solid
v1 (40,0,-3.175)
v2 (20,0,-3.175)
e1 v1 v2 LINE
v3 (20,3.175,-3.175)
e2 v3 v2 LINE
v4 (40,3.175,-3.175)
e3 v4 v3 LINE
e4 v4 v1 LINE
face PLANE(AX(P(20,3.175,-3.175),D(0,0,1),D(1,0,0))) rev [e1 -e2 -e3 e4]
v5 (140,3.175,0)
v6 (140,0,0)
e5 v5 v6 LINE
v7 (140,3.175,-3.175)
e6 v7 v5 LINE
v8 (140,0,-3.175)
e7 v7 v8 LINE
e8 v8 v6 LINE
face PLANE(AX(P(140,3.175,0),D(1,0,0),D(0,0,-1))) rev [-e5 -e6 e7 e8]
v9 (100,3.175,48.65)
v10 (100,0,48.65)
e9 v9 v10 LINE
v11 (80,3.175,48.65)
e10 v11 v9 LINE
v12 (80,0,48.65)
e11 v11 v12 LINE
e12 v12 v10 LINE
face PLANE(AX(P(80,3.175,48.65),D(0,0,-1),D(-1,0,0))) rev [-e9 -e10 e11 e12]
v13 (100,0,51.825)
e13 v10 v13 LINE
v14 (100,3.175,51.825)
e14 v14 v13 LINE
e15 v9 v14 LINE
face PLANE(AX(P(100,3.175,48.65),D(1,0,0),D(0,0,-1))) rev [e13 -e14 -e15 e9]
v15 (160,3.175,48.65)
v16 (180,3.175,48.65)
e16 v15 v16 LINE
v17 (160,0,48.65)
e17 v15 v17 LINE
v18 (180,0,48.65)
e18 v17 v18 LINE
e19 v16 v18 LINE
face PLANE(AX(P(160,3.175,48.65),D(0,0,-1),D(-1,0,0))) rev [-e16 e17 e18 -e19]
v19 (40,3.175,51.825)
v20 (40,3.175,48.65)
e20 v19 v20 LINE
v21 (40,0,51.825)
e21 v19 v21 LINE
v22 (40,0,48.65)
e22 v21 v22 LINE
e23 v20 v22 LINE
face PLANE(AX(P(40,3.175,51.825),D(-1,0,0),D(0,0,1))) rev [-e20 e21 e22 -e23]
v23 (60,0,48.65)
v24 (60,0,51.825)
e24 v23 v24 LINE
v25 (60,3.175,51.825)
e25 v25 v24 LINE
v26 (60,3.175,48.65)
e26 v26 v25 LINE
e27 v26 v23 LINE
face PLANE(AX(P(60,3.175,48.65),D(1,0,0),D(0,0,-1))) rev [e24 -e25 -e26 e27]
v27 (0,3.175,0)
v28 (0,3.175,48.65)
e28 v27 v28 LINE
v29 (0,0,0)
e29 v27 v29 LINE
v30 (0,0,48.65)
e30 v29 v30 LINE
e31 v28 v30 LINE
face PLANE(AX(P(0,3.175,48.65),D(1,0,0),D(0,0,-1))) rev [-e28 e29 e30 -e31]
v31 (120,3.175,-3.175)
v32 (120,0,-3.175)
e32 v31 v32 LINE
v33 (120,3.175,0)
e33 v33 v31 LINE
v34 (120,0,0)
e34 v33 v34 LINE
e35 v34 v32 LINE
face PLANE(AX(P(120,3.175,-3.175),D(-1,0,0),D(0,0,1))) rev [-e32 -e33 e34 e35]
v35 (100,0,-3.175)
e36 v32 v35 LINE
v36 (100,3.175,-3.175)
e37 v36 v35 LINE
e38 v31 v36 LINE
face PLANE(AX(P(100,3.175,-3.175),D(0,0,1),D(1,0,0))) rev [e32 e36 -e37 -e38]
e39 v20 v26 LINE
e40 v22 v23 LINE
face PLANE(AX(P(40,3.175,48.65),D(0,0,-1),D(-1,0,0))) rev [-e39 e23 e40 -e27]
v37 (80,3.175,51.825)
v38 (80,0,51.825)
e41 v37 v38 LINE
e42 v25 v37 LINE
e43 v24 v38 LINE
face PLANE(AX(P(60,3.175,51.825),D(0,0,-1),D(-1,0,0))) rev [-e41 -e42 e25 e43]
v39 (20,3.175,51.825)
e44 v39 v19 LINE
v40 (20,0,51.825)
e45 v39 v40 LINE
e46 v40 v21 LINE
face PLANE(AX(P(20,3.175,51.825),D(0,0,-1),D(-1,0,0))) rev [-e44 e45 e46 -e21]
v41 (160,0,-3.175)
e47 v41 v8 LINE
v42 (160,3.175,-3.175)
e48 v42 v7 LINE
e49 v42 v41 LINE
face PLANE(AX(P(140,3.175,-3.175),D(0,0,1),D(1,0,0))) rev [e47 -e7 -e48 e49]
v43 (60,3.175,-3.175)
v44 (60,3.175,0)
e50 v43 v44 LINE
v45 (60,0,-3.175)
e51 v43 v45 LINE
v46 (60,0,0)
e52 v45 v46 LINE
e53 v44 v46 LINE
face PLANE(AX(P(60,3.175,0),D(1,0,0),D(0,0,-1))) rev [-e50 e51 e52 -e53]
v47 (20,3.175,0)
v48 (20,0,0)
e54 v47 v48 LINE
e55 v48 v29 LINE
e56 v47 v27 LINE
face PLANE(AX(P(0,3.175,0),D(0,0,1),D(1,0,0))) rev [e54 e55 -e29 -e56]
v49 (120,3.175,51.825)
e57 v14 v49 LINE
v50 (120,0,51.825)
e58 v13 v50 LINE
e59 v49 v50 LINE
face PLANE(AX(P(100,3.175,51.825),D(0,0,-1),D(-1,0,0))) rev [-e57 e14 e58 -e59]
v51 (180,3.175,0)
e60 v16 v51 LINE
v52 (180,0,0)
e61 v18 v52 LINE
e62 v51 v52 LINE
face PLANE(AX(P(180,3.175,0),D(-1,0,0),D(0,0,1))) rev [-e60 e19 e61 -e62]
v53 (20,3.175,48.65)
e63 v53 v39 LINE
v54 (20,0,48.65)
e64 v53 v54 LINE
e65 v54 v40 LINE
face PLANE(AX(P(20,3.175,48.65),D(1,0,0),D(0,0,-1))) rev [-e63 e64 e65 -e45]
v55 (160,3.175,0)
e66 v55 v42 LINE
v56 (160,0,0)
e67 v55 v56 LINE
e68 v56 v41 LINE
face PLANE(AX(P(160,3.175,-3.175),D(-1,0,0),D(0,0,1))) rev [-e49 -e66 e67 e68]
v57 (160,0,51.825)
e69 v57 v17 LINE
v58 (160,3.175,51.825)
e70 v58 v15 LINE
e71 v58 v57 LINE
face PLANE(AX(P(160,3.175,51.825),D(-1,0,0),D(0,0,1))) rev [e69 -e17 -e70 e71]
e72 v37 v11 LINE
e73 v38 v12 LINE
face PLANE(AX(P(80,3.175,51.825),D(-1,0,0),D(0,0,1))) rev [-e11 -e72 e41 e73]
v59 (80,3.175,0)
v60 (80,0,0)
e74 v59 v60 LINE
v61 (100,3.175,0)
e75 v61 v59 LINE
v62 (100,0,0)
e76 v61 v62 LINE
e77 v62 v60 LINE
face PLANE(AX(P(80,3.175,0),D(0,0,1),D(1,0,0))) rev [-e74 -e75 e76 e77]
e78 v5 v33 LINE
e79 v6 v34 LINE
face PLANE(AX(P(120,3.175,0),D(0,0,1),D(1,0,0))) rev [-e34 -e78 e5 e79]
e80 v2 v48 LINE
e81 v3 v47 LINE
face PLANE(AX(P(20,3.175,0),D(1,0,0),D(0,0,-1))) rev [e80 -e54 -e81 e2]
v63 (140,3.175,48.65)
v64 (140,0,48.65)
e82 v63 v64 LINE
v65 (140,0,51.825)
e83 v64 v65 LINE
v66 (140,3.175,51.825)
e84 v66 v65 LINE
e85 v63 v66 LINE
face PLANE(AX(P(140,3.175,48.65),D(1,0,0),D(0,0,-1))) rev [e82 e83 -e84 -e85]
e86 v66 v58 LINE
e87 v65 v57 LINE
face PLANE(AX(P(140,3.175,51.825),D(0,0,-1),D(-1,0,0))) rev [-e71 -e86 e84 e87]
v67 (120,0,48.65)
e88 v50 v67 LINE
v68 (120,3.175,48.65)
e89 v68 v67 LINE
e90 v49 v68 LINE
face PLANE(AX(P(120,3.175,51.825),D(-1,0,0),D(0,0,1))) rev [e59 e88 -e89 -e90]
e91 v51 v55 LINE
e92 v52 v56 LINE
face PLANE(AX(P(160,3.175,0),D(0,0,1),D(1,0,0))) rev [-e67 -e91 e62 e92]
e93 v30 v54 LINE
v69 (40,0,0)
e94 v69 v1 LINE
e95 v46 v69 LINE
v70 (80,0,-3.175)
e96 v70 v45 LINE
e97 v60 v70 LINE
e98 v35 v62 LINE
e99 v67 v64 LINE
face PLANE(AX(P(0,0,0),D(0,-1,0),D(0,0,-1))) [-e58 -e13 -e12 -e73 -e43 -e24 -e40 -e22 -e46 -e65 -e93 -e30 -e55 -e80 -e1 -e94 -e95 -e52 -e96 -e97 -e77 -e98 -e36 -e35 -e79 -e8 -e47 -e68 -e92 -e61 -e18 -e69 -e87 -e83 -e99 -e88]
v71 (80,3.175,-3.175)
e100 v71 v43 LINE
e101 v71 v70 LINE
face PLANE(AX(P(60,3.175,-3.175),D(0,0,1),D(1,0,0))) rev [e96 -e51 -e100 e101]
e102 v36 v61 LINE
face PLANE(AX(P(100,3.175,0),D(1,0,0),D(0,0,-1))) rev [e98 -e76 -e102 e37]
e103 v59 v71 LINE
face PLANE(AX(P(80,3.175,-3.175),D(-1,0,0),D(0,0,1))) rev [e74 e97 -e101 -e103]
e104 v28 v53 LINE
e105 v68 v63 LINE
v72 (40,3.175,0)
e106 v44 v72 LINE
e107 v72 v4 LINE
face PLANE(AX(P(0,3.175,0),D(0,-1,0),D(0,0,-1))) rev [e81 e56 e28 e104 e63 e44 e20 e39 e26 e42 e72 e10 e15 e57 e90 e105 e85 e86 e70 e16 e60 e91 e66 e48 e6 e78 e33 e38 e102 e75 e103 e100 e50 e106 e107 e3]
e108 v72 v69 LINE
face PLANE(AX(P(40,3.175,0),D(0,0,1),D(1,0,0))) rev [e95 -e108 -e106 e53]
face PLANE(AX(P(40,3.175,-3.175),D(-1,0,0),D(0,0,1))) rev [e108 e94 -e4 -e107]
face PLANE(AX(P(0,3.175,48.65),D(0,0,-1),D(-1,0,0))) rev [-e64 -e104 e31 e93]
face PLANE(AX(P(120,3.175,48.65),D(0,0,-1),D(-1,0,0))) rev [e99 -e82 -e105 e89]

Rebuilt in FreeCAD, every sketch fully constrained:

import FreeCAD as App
import Part
import Sketcher
from FreeCAD import Vector
Q = App.Units.Quantity

doc = App.newDocument("Part")
body = doc.addObject("PartDesign::Body", "Body")

sketch1 = body.newObject("Sketcher::SketchObject", "Sketch")
sketch1.AttachmentSupport = (doc.getObject("XZ_Plane"), [""])
sketch1.MapMode = "FlatFace"
sketch1.addGeometry([
    Part.LineSegment(Vector(20, 0, 0), Vector(0, 0, 0)),
    Part.LineSegment(Vector(0, 0, 0), Vector(0, 48.6, 0)),
    Part.LineSegment(Vector(0, 48.6, 0), Vector(20, 48.6, 0)),
    Part.LineSegment(Vector(20, 48.6, 0), Vector(20, 51.8, 0)),
    Part.LineSegment(Vector(20, 51.8, 0), Vector(40, 51.8, 0)),
    Part.LineSegment(Vector(40, 51.8, 0), Vector(40, 48.6, 0)),
    Part.LineSegment(Vector(40, 48.6, 0), Vector(60, 48.6, 0)),
    Part.LineSegment(Vector(60, 48.6, 0), Vector(60, 51.8, 0)),
    Part.LineSegment(Vector(60, 51.8, 0), Vector(80, 51.8, 0)),
    Part.LineSegment(Vector(80, 51.8, 0), Vector(80, 48.6, 0)),
    Part.LineSegment(Vector(80, 48.6, 0), Vector(100, 48.6, 0)),
    Part.LineSegment(Vector(100, 48.6, 0), Vector(100, 51.8, 0)),
    Part.LineSegment(Vector(100, 51.8, 0), Vector(120, 51.8, 0)),
    Part.LineSegment(Vector(120, 51.8, 0), Vector(120, 48.6, 0)),
    Part.LineSegment(Vector(120, 48.6, 0), Vector(140, 48.6, 0)),
    Part.LineSegment(Vector(140, 48.6, 0), Vector(140, 51.8, 0)),
    Part.LineSegment(Vector(140, 51.8, 0), Vector(160, 51.8, 0)),
    Part.LineSegment(Vector(160, 51.8, 0), Vector(160, 48.6, 0)),
    Part.LineSegment(Vector(160, 48.6, 0), Vector(180, 48.6, 0)),
    Part.LineSegment(Vector(180, 48.6, 0), Vector(180, 0, 0)),
    Part.LineSegment(Vector(180, 0, 0), Vector(160, 0, 0)),
    Part.LineSegment(Vector(160, 0, 0), Vector(160, -3.2, 0)),
    Part.LineSegment(Vector(160, -3.2, 0), Vector(140, -3.2, 0)),
    Part.LineSegment(Vector(140, -3.2, 0), Vector(140, 0, 0)),
    Part.LineSegment(Vector(140, 0, 0), Vector(120, 0, 0)),
    Part.LineSegment(Vector(120, 0, 0), Vector(120, -3.2, 0)),
    Part.LineSegment(Vector(120, -3.2, 0), Vector(100, -3.2, 0)),
    Part.LineSegment(Vector(100, -3.2, 0), Vector(100, 0, 0)),
    Part.LineSegment(Vector(100, 0, 0), Vector(80, 0, 0)),
    Part.LineSegment(Vector(80, 0, 0), Vector(80, -3.2, 0)),
    Part.LineSegment(Vector(80, -3.2, 0), Vector(60, -3.2, 0)),
    Part.LineSegment(Vector(60, -3.2, 0), Vector(60, 0, 0)),
    Part.LineSegment(Vector(60, 0, 0), Vector(40, 0, 0)),
    Part.LineSegment(Vector(40, 0, 0), Vector(40, -3.2, 0)),
    Part.LineSegment(Vector(40, -3.2, 0), Vector(20, -3.2, 0)),
    Part.LineSegment(Vector(20, -3.2, 0), Vector(20, 0, 0)),
], False)
sketch1.addConstraint([
    Sketcher.Constraint("Coincident", 0, 2, 1, 1),
    Sketcher.Constraint("Coincident", 1, 2, 2, 1),
    Sketcher.Constraint("Coincident", 2, 2, 3, 1),
    Sketcher.Constraint("Coincident", 3, 2, 4, 1),
    Sketcher.Constraint("Coincident", 4, 2, 5, 1),
    Sketcher.Constraint("Coincident", 5, 2, 6, 1),
    Sketcher.Constraint("Coincident", 6, 2, 7, 1),
    Sketcher.Constraint("Coincident", 7, 2, 8, 1),
    Sketcher.Constraint("Coincident", 8, 2, 9, 1),
    Sketcher.Constraint("Coincident", 9, 2, 10, 1),
    Sketcher.Constraint("Coincident", 10, 2, 11, 1),
    Sketcher.Constraint("Coincident", 11, 2, 12, 1),
    Sketcher.Constraint("Coincident", 12, 2, 13, 1),
    Sketcher.Constraint("Coincident", 13, 2, 14, 1),
    Sketcher.Constraint("Coincident", 14, 2, 15, 1),
    Sketcher.Constraint("Coincident", 15, 2, 16, 1),
    Sketcher.Constraint("Coincident", 16, 2, 17, 1),
    Sketcher.Constraint("Coincident", 17, 2, 18, 1),
    Sketcher.Constraint("Coincident", 18, 2, 19, 1),
    Sketcher.Constraint("Coincident", 19, 2, 20, 1),
    Sketcher.Constraint("Coincident", 20, 2, 21, 1),
    Sketcher.Constraint("Coincident", 21, 2, 22, 1),
    Sketcher.Constraint("Coincident", 22, 2, 23, 1),
    Sketcher.Constraint("Coincident", 23, 2, 24, 1),
    Sketcher.Constraint("Coincident", 24, 2, 25, 1),
    Sketcher.Constraint("Coincident", 25, 2, 26, 1),
    Sketcher.Constraint("Coincident", 26, 2, 27, 1),
    Sketcher.Constraint("Coincident", 27, 2, 28, 1),
    Sketcher.Constraint("Coincident", 28, 2, 29, 1),
    Sketcher.Constraint("Coincident", 29, 2, 30, 1),
    Sketcher.Constraint("Coincident", 30, 2, 31, 1),
    Sketcher.Constraint("Coincident", 31, 2, 32, 1),
    Sketcher.Constraint("Coincident", 32, 2, 33, 1),
    Sketcher.Constraint("Coincident", 33, 2, 34, 1),
    Sketcher.Constraint("Coincident", 34, 2, 35, 1),
    Sketcher.Constraint("Coincident", 35, 2, 0, 1),
    Sketcher.Constraint("Horizontal", 0),
    Sketcher.Constraint("Vertical", 1),
    Sketcher.Constraint("Horizontal", 2),
    Sketcher.Constraint("Vertical", 3),
    Sketcher.Constraint("Horizontal", 4),
    Sketcher.Constraint("Vertical", 5),
    Sketcher.Constraint("Horizontal", 6),
    Sketcher.Constraint("Vertical", 7),
    Sketcher.Constraint("Horizontal", 8),
    Sketcher.Constraint("Vertical", 9),
    Sketcher.Constraint("Horizontal", 10),
    Sketcher.Constraint("Vertical", 11),
    Sketcher.Constraint("Horizontal", 12),
    Sketcher.Constraint("Vertical", 13),
    Sketcher.Constraint("Horizontal", 14),
    Sketcher.Constraint("Vertical", 15),
    Sketcher.Constraint("Horizontal", 16),
    Sketcher.Constraint("Vertical", 17),
    Sketcher.Constraint("Horizontal", 18),
    Sketcher.Constraint("Vertical", 19),
    Sketcher.Constraint("Horizontal", 20),
    Sketcher.Constraint("Vertical", 21),
    Sketcher.Constraint("Horizontal", 22),
    Sketcher.Constraint("Vertical", 23),
    Sketcher.Constraint("Horizontal", 24),
    Sketcher.Constraint("Vertical", 25),
    Sketcher.Constraint("Horizontal", 26),
    Sketcher.Constraint("Vertical", 27),
    Sketcher.Constraint("Horizontal", 28),
    Sketcher.Constraint("Vertical", 29),
    Sketcher.Constraint("Horizontal", 30),
    Sketcher.Constraint("Vertical", 31),
    Sketcher.Constraint("Horizontal", 32),
    Sketcher.Constraint("Vertical", 33),
    Sketcher.Constraint("Horizontal", 34),
    Sketcher.Constraint("Vertical", 35),
    Sketcher.Constraint("Coincident", 0, 2, -1, 1),
    Sketcher.Constraint("PointOnObject", 19, 2, -1),
    Sketcher.Constraint("PointOnObject", 23, 2, -1),
    Sketcher.Constraint("PointOnObject", 27, 2, -1),
    Sketcher.Constraint("PointOnObject", 31, 2, -1),
    Sketcher.Constraint("Horizontal", 2, 2, 5, 2),
    Sketcher.Constraint("Horizontal", 4, 2, 7, 2),
    Sketcher.Constraint("Horizontal", 6, 2, 9, 2),
    Sketcher.Constraint("Horizontal", 8, 2, 11, 2),
    Sketcher.Constraint("Horizontal", 10, 2, 13, 2),
    Sketcher.Constraint("Horizontal", 12, 2, 15, 2),
    Sketcher.Constraint("Horizontal", 14, 2, 17, 2),
    Sketcher.Constraint("Horizontal", 22, 2, 25, 2),
    Sketcher.Constraint("Horizontal", 26, 2, 29, 2),
    Sketcher.Constraint("Horizontal", 30, 2, 33, 2),
    Sketcher.Constraint("Vertical", 17, 2, 20, 2),
    Sketcher.Constraint("Vertical", 15, 2, 22, 2),
    Sketcher.Constraint("Vertical", 13, 2, 24, 2),
    Sketcher.Constraint("Vertical", 11, 2, 26, 2),
    Sketcher.Constraint("Vertical", 9, 2, 28, 2),
    Sketcher.Constraint("Vertical", 7, 2, 30, 2),
    Sketcher.Constraint("Vertical", 5, 2, 32, 2),
    Sketcher.Constraint("Vertical", 3, 2, 34, 2),
    Sketcher.Constraint("Equal", 2, 4),
    Sketcher.Constraint("Equal", 4, 6),
    Sketcher.Constraint("Equal", 6, 8),
    Sketcher.Constraint("Equal", 8, 10),
    Sketcher.Constraint("Equal", 10, 12),
    Sketcher.Constraint("Equal", 12, 14),
    Sketcher.Constraint("Equal", 14, 16),
    Sketcher.Constraint("Equal", 16, 18),
    Sketcher.Constraint("Equal", 17, 21),
    Sketcher.Constraint("DistanceX", 0, 2, 0, 1, Q("20 mm")),
    Sketcher.Constraint("DistanceY", 21, 2, 16, 2, Q("55 mm")),
    Sketcher.Constraint("DistanceY", 1, 1, 1, 2, Q("48.65 mm")),
])
pad1 = body.newObject("PartDesign::Pad", "Pad")
pad1.Profile = sketch1
pad1.Length = 3.175
pad1.Reversed = True

doc.recompute()
